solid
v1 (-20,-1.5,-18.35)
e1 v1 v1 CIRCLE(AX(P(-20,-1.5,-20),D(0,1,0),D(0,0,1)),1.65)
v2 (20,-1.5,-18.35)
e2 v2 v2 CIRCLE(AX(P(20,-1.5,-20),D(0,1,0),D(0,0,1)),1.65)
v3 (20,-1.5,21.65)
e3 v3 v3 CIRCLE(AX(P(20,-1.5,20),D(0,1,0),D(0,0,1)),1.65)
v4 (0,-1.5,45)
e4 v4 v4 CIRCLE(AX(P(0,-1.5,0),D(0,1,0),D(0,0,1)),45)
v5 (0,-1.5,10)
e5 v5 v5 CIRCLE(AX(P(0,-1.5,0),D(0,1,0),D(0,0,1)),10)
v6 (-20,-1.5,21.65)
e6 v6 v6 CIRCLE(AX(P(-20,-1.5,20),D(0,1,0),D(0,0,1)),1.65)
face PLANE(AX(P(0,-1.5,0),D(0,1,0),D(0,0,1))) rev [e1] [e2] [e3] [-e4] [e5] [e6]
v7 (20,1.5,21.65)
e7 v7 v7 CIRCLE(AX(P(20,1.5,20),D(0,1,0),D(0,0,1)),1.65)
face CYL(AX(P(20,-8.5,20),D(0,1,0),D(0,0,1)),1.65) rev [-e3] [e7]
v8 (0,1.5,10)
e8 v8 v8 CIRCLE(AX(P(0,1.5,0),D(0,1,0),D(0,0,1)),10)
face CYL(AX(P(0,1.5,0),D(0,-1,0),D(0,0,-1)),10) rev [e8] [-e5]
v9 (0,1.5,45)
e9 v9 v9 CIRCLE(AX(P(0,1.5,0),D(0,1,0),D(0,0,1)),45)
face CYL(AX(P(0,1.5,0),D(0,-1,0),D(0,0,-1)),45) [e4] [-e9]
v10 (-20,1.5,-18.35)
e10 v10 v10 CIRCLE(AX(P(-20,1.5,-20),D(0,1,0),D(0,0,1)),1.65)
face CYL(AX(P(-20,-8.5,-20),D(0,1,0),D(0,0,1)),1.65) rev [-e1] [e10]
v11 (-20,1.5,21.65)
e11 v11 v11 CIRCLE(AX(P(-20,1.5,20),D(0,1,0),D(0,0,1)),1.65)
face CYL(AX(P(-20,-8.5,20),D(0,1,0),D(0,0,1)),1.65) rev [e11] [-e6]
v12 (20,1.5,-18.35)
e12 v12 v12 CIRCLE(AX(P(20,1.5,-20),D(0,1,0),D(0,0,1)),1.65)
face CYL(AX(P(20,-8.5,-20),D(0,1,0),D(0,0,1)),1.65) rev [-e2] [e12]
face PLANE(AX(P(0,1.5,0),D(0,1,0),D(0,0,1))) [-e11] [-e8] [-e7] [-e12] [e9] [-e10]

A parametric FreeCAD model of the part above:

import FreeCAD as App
import Part
import Sketcher
from FreeCAD import Vector
Q = App.Units.Quantity

doc = App.newDocument("Part")
body = doc.addObject("PartDesign::Body", "Body")

sketch1 = doc.addObject("Sketcher::SketchObject", "Sketch")
body.addObject(sketch1)
sketch1.AttachmentSupport = (doc.XZ_Plane, [""])
sketch1.MapMode = "FlatFace"
sketch1.addGeometry(Part.Circle(Vector(0, 0, 0), Vector(0, 0, 1), 45), False)
sketch1.addGeometry(Part.Circle(Vector(0, 0, 0), Vector(0, 0, 1), 10), False)
sketch1.addConstraint(Sketcher.Constraint("Coincident", 0, 3, -1, 1))
sketch1.addConstraint(Sketcher.Constraint("Coincident", 1, 3, -1, 1))
sketch1.addConstraint(Sketcher.Constraint("Diameter", 0, Q("90 mm")))
sketch1.addConstraint(Sketcher.Constraint("Diameter", 1, Q("20 mm")))
pad1 = doc.addObject("PartDesign::Pad", "Pad")
body.addObject(pad1)
pad1.Profile = sketch1
pad1.Length = 3
pad1.Midplane = True

sketch2 = doc.addObject("Sketcher::SketchObject", "Sketch001")
body.addObject(sketch2)
sketch2.AttachmentSupport = (doc.XZ_Plane, [""])
sketch2.MapMode = "FlatFace"
sketch2.AttachmentOffset = App.Placement(Vector(0, 0, -1.5), App.Rotation())
sketch2.addGeometry(Part.Circle(Vector(-20, 20, 0), Vector(0, 0, 1), 1.65), False)
sketch2.addGeometry(Part.Circle(Vector(-20, -20, 0), Vector(0, 0, 1), 1.65), False)
sketch2.addGeometry(Part.Circle(Vector(20, -20, 0), Vector(0, 0, 1), 1.65), False)
sketch2.addGeometry(Part.Circle(Vector(20, 20, 0), Vector(0, 0, 1), 1.65), False)
sketch2.addConstraint(Sketcher.Constraint("Equal", 0, 1))
sketch2.addConstraint(Sketcher.Constraint("Equal", 1, 2))
sketch2.addConstraint(Sketcher.Constraint("Equal", 2, 3))
sketch2.addConstraint(Sketcher.Constraint("Symmetric", 0, 3, 2, 3, -1, 1))
sketch2.addConstraint(Sketcher.Constraint("Symmetric", 1, 3, 3, 3, -1, 1))
sketch2.addConstraint(Sketcher.Constraint("Symmetric", 1, 3, 2, 3, -2))
sketch2.addConstraint(Sketcher.Constraint("Diameter", 0, Q("3.3 mm")))
sketch2.addConstraint(Sketcher.Constraint("DistanceX", 0, 3, -1, 1, Q("20 mm")))
sketch2.addConstraint(Sketcher.Constraint("DistanceY", -1, 1, 0, 3, Q("20 mm")))
pocket1 = doc.addObject("PartDesign::Pocket", "Pocket")
body.addObject(pocket1)
pocket1.Profile = sketch2
pocket1.Length = 10
pocket1.Reversed = True

doc.recompute()
